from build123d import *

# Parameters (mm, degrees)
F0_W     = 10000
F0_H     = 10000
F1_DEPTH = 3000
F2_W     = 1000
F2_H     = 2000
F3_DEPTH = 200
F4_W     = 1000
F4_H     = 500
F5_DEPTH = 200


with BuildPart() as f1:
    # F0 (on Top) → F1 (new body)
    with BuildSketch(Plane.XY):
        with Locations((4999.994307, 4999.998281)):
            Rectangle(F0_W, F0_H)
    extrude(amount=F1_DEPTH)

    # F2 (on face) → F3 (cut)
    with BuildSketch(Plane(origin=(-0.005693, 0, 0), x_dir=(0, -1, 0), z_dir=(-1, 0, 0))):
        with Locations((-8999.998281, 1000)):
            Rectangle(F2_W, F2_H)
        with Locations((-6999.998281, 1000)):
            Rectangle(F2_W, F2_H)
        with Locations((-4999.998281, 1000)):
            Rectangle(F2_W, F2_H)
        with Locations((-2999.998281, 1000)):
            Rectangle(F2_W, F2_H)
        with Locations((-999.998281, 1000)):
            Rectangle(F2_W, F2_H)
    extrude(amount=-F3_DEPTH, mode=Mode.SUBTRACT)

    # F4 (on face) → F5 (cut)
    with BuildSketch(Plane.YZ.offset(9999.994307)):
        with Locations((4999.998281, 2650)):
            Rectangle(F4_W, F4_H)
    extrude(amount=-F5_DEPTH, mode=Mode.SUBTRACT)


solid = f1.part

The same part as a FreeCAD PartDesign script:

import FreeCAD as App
import Part
import Sketcher

doc = App.newDocument("Part")
body = doc.addObject("PartDesign::Body", "Body")

# Sketch on XY plane
sketch1 = body.newObject("Sketcher::SketchObject", "Sketch")
sketch1.AttachmentSupport = (doc.getObject("XY_Plane"), [""])
sketch1.MapMode = "FlatFace"
sketch1.addGeometry(Part.LineSegment(App.Vector(0, 10000, 0), App.Vector(0, 0, 0)), False)
sketch1.addGeometry(Part.LineSegment(App.Vector(0, 0, 0), App.Vector(10000, 0, 0)), False)
sketch1.addGeometry(Part.LineSegment(App.Vector(10000, 0, 0), App.Vector(10000, 10000, 0)), False)
sketch1.addGeometry(Part.LineSegment(App.Vector(10000, 10000, 0), App.Vector(0, 10000, 0)), False)
sketch1.addConstraint(Sketcher.Constraint("Coincident", 0, 2, 1, 1))
sketch1.addConstraint(Sketcher.Constraint("Coincident", 1, 2, 2, 1))
sketch1.addConstraint(Sketcher.Constraint("Coincident", 2, 2, 3, 1))
sketch1.addConstraint(Sketcher.Constraint("Coincident", 3, 2, 0, 1))
sketch1.addConstraint(Sketcher.Constraint("Vertical", 0))
sketch1.addConstraint(Sketcher.Constraint("Horizontal", 1))
sketch1.addConstraint(Sketcher.Constraint("Vertical", 2))
sketch1.addConstraint(Sketcher.Constraint("Horizontal", 3))
sketch1.addConstraint(Sketcher.Constraint("Equal", 3, 0))
sketch1.addConstraint(Sketcher.Constraint("DistanceX", 1, 1, 1, 2, 10000.0))
sketch1.addConstraint(Sketcher.Constraint("DistanceY", 0, 2, -1, 1, 0.001719))
sketch1.addConstraint(Sketcher.Constraint("DistanceX", 0, 2, -1, 1, 0.005693))
pad1 = body.newObject("PartDesign::Pad", "Pad")
pad1.Profile = sketch1
pad1.Length = 3000

# Sketch on YZ plane
sketch2 = body.newObject("Sketcher::SketchObject", "Sketch001")
sketch2.AttachmentSupport = (doc.getObject("YZ_Plane"), [""])
sketch2.MapMode = "FlatFace"
sketch2.AttachmentOffset = App.Placement(App.Vector(0, 0, -0.005693), App.Rotation())
sketch2.addGeometry(Part.LineSegment(App.Vector(9500, 2000, 0), App.Vector(9500, 0, 0)), False)
sketch2.addGeometry(Part.LineSegment(App.Vector(9500, 0, 0), App.Vector(8500, 0, 0)), False)
sketch2.addGeometry(Part.LineSegment(App.Vector(8500, 0, 0), App.Vector(8500, 2000, 0)), False)
sketch2.addGeometry(Part.LineSegment(App.Vector(8500, 2000, 0), App.Vector(9500, 2000, 0)), False)
sketch2.addGeometry(Part.LineSegment(App.Vector(7500, 2000, 0), App.Vector(7500, 0, 0)), False)
sketch2.addGeometry(Part.LineSegment(App.Vector(7500, 0, 0), App.Vector(6500, 0, 0)), False)
sketch2.addGeometry(Part.LineSegment(App.Vector(6500, 0, 0), App.Vector(6500, 2000, 0)), False)
sketch2.addGeometry(Part.LineSegment(App.Vector(6500, 2000, 0), App.Vector(7500, 2000, 0)), False)
sketch2.addGeometry(Part.LineSegment(App.Vector(5500, 2000, 0), App.Vector(5500, 0, 0)), False)
sketch2.addGeometry(Part.LineSegment(App.Vector(5500, 0, 0), App.Vector(4500, 0, 0)), False)
sketch2.addGeometry(Part.LineSegment(App.Vector(4500, 0, 0), App.Vector(4500, 2000, 0)), False)
sketch2.addGeometry(Part.LineSegment(App.Vector(4500, 2000, 0), App.Vector(5500, 2000, 0)), False)
sketch2.addGeometry(Part.LineSegment(App.Vector(3500, 2000, 0), App.Vector(3500, 0, 0)), False)
sketch2.addGeometry(Part.LineSegment(App.Vector(3500, 0, 0), App.Vector(2500, 0, 0)), False)
sketch2.addGeometry(Part.LineSegment(App.Vector(2500, 0, 0), App.Vector(2500, 2000, 0)), False)
sketch2.addGeometry(Part.LineSegment(App.Vector(2500, 2000, 0), App.Vector(3500, 2000, 0)), False)
sketch2.addGeometry(Part.LineSegment(App.Vector(1500, 2000, 0), App.Vector(1500, 0, 0)), False)
sketch2.addGeometry(Part.LineSegment(App.Vector(1500, 0, 0), App.Vector(500, 0, 0)), False)
sketch2.addGeometry(Part.LineSegment(App.Vector(500, 0, 0), App.Vector(500, 2000, 0)), False)
sketch2.addGeometry(Part.LineSegment(App.Vector(500, 2000, 0), App.Vector(1500, 2000, 0)), False)
sketch2.addConstraint(Sketcher.Constraint("Coincident", 0, 2, 1, 1))
sketch2.addConstraint(Sketcher.Constraint("Coincident", 1, 2, 2, 1))
sketch2.addConstraint(Sketcher.Constraint("Coincident", 2, 2, 3, 1))
sketch2.addConstraint(Sketcher.Constraint("Coincident", 3, 2, 0, 1))
sketch2.addConstraint(Sketcher.Constraint("Coincident", 4, 2, 5, 1))
sketch2.addConstraint(Sketcher.Constraint("Coincident", 5, 2, 6, 1))
sketch2.addConstraint(Sketcher.Constraint("Coincident", 6, 2, 7, 1))
sketch2.addConstraint(Sketcher.Constraint("Coincident", 7, 2, 4, 1))
sketch2.addConstraint(Sketcher.Constraint("Coincident", 8, 2, 9, 1))
sketch2.addConstraint(Sketcher.Constraint("Coincident", 9, 2, 10, 1))
sketch2.addConstraint(Sketcher.Constraint("Coincident", 10, 2, 11, 1))
sketch2.addConstraint(Sketcher.Constraint("Coincident", 11, 2, 8, 1))
sketch2.addConstraint(Sketcher.Constraint("Coincident", 12, 2, 13, 1))
sketch2.addConstraint(Sketcher.Constraint("Coincident", 13, 2, 14, 1))
sketch2.addConstraint(Sketcher.Constraint("Coincident", 14, 2, 15, 1))
sketch2.addConstraint(Sketcher.Constraint("Coincident", 15, 2, 12, 1))
sketch2.addConstraint(Sketcher.Constraint("Coincident", 16, 2, 17, 1))
sketch2.addConstraint(Sketcher.Constraint("Coincident", 17, 2, 18, 1))
sketch2.addConstraint(Sketcher.Constraint("Coincident", 18, 2, 19, 1))
sketch2.addConstraint(Sketcher.Constraint("Coincident", 19, 2, 16, 1))
sketch2.addConstraint(Sketcher.Constraint("Vertical", 0))
sketch2.addConstraint(Sketcher.Constraint("Horizontal", 1))
sketch2.addConstraint(Sketcher.Constraint("Vertical", 2))
sketch2.addConstraint(Sketcher.Constraint("Horizontal", 3))
sketch2.addConstraint(Sketcher.Constraint("Vertical", 4))
sketch2.addConstraint(Sketcher.Constraint("Horizontal", 5))
sketch2.addConstraint(Sketcher.Constraint("Vertical", 6))
sketch2.addConstraint(Sketcher.Constraint("Horizontal", 7))
sketch2.addConstraint(Sketcher.Constraint("Vertical", 8))
sketch2.addConstraint(Sketcher.Constraint("Horizontal", 9))
sketch2.addConstraint(Sketcher.Constraint("Vertical", 10))
sketch2.addConstraint(Sketcher.Constraint("Horizontal", 11))
sketch2.addConstraint(Sketcher.Constraint("Vertical", 12))
sketch2.addConstraint(Sketcher.Constraint("Horizontal", 13))
sketch2.addConstraint(Sketcher.Constraint("Vertical", 14))
sketch2.addConstraint(Sketcher.Constraint("Horizontal", 15))
sketch2.addConstraint(Sketcher.Constraint("Vertical", 16))
sketch2.addConstraint(Sketcher.Constraint("Horizontal", 17))
sketch2.addConstraint(Sketcher.Constraint("Vertical", 18))
sketch2.addConstraint(Sketcher.Constraint("Horizontal", 19))
sketch2.addConstraint(Sketcher.Constraint("PointOnObject", 0, 2, -1))
sketch2.addConstraint(Sketcher.Constraint("PointOnObject", 4, 2, -1))
sketch2.addConstraint(Sketcher.Constraint("PointOnObject", 8, 2, -1))
sketch2.addConstraint(Sketcher.Constraint("PointOnObject", 12, 2, -1))
sketch2.addConstraint(Sketcher.Constraint("PointOnObject", 16, 2, -1))
sketch2.addConstraint(Sketcher.Constraint("Horizontal", 3, 2, 6, 2))
sketch2.addConstraint(Sketcher.Constraint("Horizontal", 7, 2, 10, 2))
sketch2.addConstraint(Sketcher.Constraint("Horizontal", 11, 2, 14, 2))
sketch2.addConstraint(Sketcher.Constraint("Horizontal", 15, 2, 18, 2))
sketch2.addConstraint(Sketcher.Constraint("Equal", 3, 5))
sketch2.addConstraint(Sketcher.Constraint("Equal", 7, 9))
sketch2.addConstraint(Sketcher.Constraint("Equal", 11, 13))
sketch2.addConstraint(Sketcher.Constraint("Equal", 15, 17))
sketch2.addConstraint(Sketcher.Constraint("DistanceX", 1, 2, 1, 1, 1000.0))
sketch2.addConstraint(Sketcher.Constraint("DistanceY", 0, 2, 0, 1, 2000.0))
sketch2.addConstraint(Sketcher.Constraint("DistanceX", 4, 2, 1, 2, 1000.0))
sketch2.addConstraint(Sketcher.Constraint("DistanceX", 8, 2, 5, 2, 1000.0))
sketch2.addConstraint(Sketcher.Constraint("DistanceX", 12, 2, 9, 2, 1000.0))
sketch2.addConstraint(Sketcher.Constraint("DistanceX", 16, 2, 13, 2, 1000.0))
sketch2.addConstraint(Sketcher.Constraint("DistanceX", -1, 1, 0, 2, 9499.998281))
pocket1 = body.newObject("PartDesign::Pocket", "Pocket")
pocket1.Profile = sketch2
pocket1.Length = 200
pocket1.Reversed = True

# Sketch on YZ plane
sketch3 = body.newObject("Sketcher::SketchObject", "Sketch002")
sketch3.AttachmentSupport = (doc.getObject("YZ_Plane"), [""])
sketch3.MapMode = "FlatFace"
sketch3.AttachmentOffset = App.Placement(App.Vector(0, 0, 9999.994307), App.Rotation())
sketch3.addGeometry(Part.LineSegment(App.Vector(4499.998281, 2900, 0), App.Vector(4499.998281, 2400, 0)), False)
sketch3.addGeometry(Part.LineSegment(App.Vector(4499.998281, 2400, 0), App.Vector(5499.998281, 2400, 0)), False)
sketch3.addGeometry(Part.LineSegment(App.Vector(5499.998281, 2400, 0), App.Vector(5499.998281, 2900, 0)), False)
sketch3.addGeometry(Part.LineSegment(App.Vector(5499.998281, 2900, 0), App.Vector(4499.998281, 2900, 0)), False)
sketch3.addConstraint(Sketcher.Constraint("Coincident", 0, 2, 1, 1))
sketch3.addConstraint(Sketcher.Constraint("Coincident", 1, 2, 2, 1))
sketch3.addConstraint(Sketcher.Constraint("Coincident", 2, 2, 3, 1))
sketch3.addConstraint(Sketcher.Constraint("Coincident", 3, 2, 0, 1))
sketch3.addConstraint(Sketcher.Constraint("Vertical", 0))
sketch3.addConstraint(Sketcher.Constraint("Horizontal", 1))
sketch3.addConstraint(Sketcher.Constraint("Vertical", 2))
sketch3.addConstraint(Sketcher.Constraint("Horizontal", 3))
sketch3.addConstraint(Sketcher.Constraint("DistanceX", 1, 1, 1, 2, 1000.0))
sketch3.addConstraint(Sketcher.Constraint("DistanceY", 0, 2, 0, 1, 500.0))
sketch3.addConstraint(Sketcher.Constraint("DistanceY", -1, 1, 0, 2, 2400.0))
sketch3.addConstraint(Sketcher.Constraint("DistanceX", -1, 1, 0, 2, 4499.998281))
pocket2 = body.newObject("PartDesign::Pocket", "Pocket001")
pocket2.Profile = sketch3
pocket2.Length = 200

doc.recompute()
